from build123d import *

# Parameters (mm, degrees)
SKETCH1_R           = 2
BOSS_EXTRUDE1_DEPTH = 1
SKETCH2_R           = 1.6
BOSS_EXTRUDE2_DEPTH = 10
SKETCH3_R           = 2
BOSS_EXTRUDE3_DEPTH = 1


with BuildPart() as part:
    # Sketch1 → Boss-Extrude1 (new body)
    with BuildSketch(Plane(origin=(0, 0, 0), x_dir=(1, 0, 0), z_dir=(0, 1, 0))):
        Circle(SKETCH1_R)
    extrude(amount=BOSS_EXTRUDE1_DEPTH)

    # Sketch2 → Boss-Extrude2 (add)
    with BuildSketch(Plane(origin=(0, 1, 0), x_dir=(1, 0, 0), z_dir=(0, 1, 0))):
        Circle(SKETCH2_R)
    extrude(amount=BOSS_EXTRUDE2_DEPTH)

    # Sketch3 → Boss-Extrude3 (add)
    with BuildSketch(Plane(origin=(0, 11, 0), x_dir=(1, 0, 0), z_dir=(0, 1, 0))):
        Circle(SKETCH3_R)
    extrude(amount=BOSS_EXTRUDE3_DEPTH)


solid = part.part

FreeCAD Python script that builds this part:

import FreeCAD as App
import Part
import Sketcher

doc = App.newDocument("Part")
body = doc.addObject("PartDesign::Body", "Body")

# Sketch on XZ plane
sketch1 = body.newObject("Sketcher::SketchObject", "Sketch")
sketch1.AttachmentSupport = (doc.getObject("XZ_Plane"), [""])
sketch1.MapMode = "FlatFace"
sketch1.addGeometry(Part.Circle(App.Vector(0, 0, 0), App.Vector(0, 0, 1), 2), False)
sketch1.addConstraint(Sketcher.Constraint("Coincident", 0, 3, -1, 1))
sketch1.addConstraint(Sketcher.Constraint("Diameter", 0, 4.0))
pad1 = body.newObject("PartDesign::Pad", "Pad")
pad1.Profile = sketch1
pad1.Length = 1
pad1.Reversed = True

# Sketch on XZ plane
sketch2 = body.newObject("Sketcher::SketchObject", "Sketch001")
sketch2.AttachmentSupport = (doc.getObject("XZ_Plane"), [""])
sketch2.MapMode = "FlatFace"
sketch2.AttachmentOffset = App.Placement(App.Vector(0, 0, -1), App.Rotation())
sketch2.addGeometry(Part.Circle(App.Vector(0, 0, 0), App.Vector(0, 0, 1), 1.6), False)
sketch2.addConstraint(Sketcher.Constraint("Coincident", 0, 3, -1, 1))
sketch2.addConstraint(Sketcher.Constraint("Diameter", 0, 3.2))
pad2 = body.newObject("PartDesign::Pad", "Pad001")
pad2.Profile = sketch2
pad2.Length = 10
pad2.Reversed = True

# Sketch on XZ plane
sketch3 = body.newObject("Sketcher::SketchObject", "Sketch002")
sketch3.AttachmentSupport = (doc.getObject("XZ_Plane"), [""])
sketch3.MapMode = "FlatFace"
sketch3.AttachmentOffset = App.Placement(App.Vector(0, 0, -11), App.Rotation())
sketch3.addGeometry(Part.Circle(App.Vector(0, 0, 0), App.Vector(0, 0, 1), 2), False)
sketch3.addConstraint(Sketcher.Constraint("Coincident", 0, 3, -1, 1))
sketch3.addConstraint(Sketcher.Constraint("Diameter", 0, 4.0))
pad3 = body.newObject("PartDesign::Pad", "Pad002")
pad3.Profile = sketch3
pad3.Length = 1
pad3.Reversed = True

doc.recompute()
